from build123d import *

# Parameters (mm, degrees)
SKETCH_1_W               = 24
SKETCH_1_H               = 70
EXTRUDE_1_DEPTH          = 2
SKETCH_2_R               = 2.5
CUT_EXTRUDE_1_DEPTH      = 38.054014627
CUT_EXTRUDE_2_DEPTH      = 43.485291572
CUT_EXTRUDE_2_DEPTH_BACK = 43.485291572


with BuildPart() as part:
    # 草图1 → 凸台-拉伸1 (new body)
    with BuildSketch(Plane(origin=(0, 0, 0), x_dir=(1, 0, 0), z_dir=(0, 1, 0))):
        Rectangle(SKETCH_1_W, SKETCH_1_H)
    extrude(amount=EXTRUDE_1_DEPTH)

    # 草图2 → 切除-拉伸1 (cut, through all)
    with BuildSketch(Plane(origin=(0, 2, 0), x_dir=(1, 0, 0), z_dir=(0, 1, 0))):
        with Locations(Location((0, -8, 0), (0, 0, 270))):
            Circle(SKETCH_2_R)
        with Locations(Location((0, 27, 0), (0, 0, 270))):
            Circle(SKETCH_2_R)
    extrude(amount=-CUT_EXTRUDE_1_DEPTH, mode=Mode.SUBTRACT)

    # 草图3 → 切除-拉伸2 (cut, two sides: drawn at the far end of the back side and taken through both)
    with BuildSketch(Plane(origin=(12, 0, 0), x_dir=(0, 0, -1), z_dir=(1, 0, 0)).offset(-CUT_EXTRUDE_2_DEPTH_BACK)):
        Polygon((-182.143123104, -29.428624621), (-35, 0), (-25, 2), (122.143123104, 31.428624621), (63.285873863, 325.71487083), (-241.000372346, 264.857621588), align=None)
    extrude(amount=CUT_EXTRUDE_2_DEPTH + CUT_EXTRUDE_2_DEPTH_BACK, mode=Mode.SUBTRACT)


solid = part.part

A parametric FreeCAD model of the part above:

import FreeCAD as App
import Part
import Sketcher

V = App.Vector
Q = App.Units.Quantity


def add_polygon(sketch, points):
    """Adds a closed chain of lines whose ends are joined by coincident constraints."""
    first, n = sketch.GeometryCount, len(points)
    for a, b in zip(points, points[1:] + points[:1]):
        sketch.addGeometry(Part.LineSegment(App.Vector(*a, 0), App.Vector(*b, 0)), False)
    for i in range(n):
        sketch.addConstraint(Sketcher.Constraint("Coincident", first + i, 2, first + (i + 1) % n, 1))

doc = App.newDocument("Part")
body = doc.addObject("PartDesign::Body", "Body")

# Sketch on XZ plane
sketch1 = doc.addObject("Sketcher::SketchObject", "Sketch")
body.addObject(sketch1)
sketch1.AttachmentSupport = (doc.XZ_Plane, [""])
sketch1.MapMode = "FlatFace"
add_polygon(sketch1, [(-12, -35), (-12, 35), (12, 35), (12, -35)])  # lines 0-3
sketch1.addConstraint(Sketcher.Constraint("Vertical", 0))
sketch1.addConstraint(Sketcher.Constraint("Horizontal", 1))
sketch1.addConstraint(Sketcher.Constraint("Vertical", 2))
sketch1.addConstraint(Sketcher.Constraint("Horizontal", 3))
sketch1.addConstraint(Sketcher.Constraint("Symmetric", 0, 2, 2, 2, -1, 1))
sketch1.addConstraint(Sketcher.Constraint("DistanceX", 1, 1, 1, 2, Q("24 mm")))
sketch1.addConstraint(Sketcher.Constraint("DistanceY", 0, 1, 0, 2, Q("70 mm")))
pad1 = doc.addObject("PartDesign::Pad", "Pad")
body.addObject(pad1)
pad1.Profile = sketch1
pad1.Length = 2
pad1.Reversed = True

# Sketch on XZ plane
sketch2 = doc.addObject("Sketcher::SketchObject", "Sketch001")
body.addObject(sketch2)
sketch2.AttachmentSupport = (doc.XZ_Plane, [""])
sketch2.MapMode = "FlatFace"
sketch2.AttachmentOffset = App.Placement(V(0, 0, -2), App.Rotation())
sketch2.addGeometry(Part.Circle(V(0, 8, 0), V(0, 0, 1), 2.5), False)
sketch2.addGeometry(Part.Circle(V(0, -27, 0), V(0, 0, 1), 2.5), False)
sketch2.addConstraint(Sketcher.Constraint("Equal", 0, 1))
sketch2.addConstraint(Sketcher.Constraint("PointOnObject", 0, 3, -2))
sketch2.addConstraint(Sketcher.Constraint("PointOnObject", 1, 3, -2))
sketch2.addConstraint(Sketcher.Constraint("Diameter", 0, Q("5 mm")))
sketch2.addConstraint(Sketcher.Constraint("DistanceY", -1, 1, 0, 3, Q("8 mm")))
sketch2.addConstraint(Sketcher.Constraint("DistanceY", 1, 3, -1, 1, Q("27 mm")))
pocket1 = doc.addObject("PartDesign::Pocket", "Pocket")
body.addObject(pocket1)
pocket1.Profile = sketch2
pocket1.Type = "ThroughAll"
pocket1.Reversed = True

# Sketch on YZ plane
sketch3 = doc.addObject("Sketcher::SketchObject", "Sketch002")
body.addObject(sketch3)
sketch3.AttachmentSupport = (doc.YZ_Plane, [""])
sketch3.MapMode = "FlatFace"
sketch3.AttachmentOffset = App.Placement(V(0, 0, 12), App.Rotation())
add_polygon(sketch3, [(-29, 182), (0, 35), (2, 25), (31, -122), (326, -63), (265, 241)])  # lines 0-5
sketch3.addConstraint(Sketcher.Constraint("PointOnObject", 0, 2, -2))
sketch3.addConstraint(Sketcher.Constraint("Parallel", 0, 1))
sketch3.addConstraint(Sketcher.Constraint("Parallel", 1, 2))
sketch3.addConstraint(Sketcher.Constraint("Perpendicular", 2, 3))
sketch3.addConstraint(Sketcher.Constraint("Perpendicular", 3, 4))
sketch3.addConstraint(Sketcher.Constraint("Perpendicular", 4, 5))
sketch3.addConstraint(Sketcher.Constraint("Equal", 0, 2))
sketch3.addConstraint(Sketcher.Constraint("DistanceY", -1, 1, 0, 2, Q("35 mm")))
sketch3.addConstraint(Sketcher.Constraint("DistanceX", -1, 1, 1, 2, Q("2 mm")))
sketch3.addConstraint(Sketcher.Constraint("DistanceY", -1, 1, 1, 2, Q("25 mm")))
sketch3.addConstraint(Sketcher.Constraint("Distance", 4, Q("310.312301 mm")))
sketch3.addConstraint(Sketcher.Constraint("DistanceX", -1, 1, 3, 2, Q("325.714871 mm")))
pocket2 = doc.addObject("PartDesign::Pocket", "Pocket001")
body.addObject(pocket2)
pocket2.Profile = sketch3
pocket2.Type = "ThroughAll"
pocket2.Midplane = True

doc.recompute()
